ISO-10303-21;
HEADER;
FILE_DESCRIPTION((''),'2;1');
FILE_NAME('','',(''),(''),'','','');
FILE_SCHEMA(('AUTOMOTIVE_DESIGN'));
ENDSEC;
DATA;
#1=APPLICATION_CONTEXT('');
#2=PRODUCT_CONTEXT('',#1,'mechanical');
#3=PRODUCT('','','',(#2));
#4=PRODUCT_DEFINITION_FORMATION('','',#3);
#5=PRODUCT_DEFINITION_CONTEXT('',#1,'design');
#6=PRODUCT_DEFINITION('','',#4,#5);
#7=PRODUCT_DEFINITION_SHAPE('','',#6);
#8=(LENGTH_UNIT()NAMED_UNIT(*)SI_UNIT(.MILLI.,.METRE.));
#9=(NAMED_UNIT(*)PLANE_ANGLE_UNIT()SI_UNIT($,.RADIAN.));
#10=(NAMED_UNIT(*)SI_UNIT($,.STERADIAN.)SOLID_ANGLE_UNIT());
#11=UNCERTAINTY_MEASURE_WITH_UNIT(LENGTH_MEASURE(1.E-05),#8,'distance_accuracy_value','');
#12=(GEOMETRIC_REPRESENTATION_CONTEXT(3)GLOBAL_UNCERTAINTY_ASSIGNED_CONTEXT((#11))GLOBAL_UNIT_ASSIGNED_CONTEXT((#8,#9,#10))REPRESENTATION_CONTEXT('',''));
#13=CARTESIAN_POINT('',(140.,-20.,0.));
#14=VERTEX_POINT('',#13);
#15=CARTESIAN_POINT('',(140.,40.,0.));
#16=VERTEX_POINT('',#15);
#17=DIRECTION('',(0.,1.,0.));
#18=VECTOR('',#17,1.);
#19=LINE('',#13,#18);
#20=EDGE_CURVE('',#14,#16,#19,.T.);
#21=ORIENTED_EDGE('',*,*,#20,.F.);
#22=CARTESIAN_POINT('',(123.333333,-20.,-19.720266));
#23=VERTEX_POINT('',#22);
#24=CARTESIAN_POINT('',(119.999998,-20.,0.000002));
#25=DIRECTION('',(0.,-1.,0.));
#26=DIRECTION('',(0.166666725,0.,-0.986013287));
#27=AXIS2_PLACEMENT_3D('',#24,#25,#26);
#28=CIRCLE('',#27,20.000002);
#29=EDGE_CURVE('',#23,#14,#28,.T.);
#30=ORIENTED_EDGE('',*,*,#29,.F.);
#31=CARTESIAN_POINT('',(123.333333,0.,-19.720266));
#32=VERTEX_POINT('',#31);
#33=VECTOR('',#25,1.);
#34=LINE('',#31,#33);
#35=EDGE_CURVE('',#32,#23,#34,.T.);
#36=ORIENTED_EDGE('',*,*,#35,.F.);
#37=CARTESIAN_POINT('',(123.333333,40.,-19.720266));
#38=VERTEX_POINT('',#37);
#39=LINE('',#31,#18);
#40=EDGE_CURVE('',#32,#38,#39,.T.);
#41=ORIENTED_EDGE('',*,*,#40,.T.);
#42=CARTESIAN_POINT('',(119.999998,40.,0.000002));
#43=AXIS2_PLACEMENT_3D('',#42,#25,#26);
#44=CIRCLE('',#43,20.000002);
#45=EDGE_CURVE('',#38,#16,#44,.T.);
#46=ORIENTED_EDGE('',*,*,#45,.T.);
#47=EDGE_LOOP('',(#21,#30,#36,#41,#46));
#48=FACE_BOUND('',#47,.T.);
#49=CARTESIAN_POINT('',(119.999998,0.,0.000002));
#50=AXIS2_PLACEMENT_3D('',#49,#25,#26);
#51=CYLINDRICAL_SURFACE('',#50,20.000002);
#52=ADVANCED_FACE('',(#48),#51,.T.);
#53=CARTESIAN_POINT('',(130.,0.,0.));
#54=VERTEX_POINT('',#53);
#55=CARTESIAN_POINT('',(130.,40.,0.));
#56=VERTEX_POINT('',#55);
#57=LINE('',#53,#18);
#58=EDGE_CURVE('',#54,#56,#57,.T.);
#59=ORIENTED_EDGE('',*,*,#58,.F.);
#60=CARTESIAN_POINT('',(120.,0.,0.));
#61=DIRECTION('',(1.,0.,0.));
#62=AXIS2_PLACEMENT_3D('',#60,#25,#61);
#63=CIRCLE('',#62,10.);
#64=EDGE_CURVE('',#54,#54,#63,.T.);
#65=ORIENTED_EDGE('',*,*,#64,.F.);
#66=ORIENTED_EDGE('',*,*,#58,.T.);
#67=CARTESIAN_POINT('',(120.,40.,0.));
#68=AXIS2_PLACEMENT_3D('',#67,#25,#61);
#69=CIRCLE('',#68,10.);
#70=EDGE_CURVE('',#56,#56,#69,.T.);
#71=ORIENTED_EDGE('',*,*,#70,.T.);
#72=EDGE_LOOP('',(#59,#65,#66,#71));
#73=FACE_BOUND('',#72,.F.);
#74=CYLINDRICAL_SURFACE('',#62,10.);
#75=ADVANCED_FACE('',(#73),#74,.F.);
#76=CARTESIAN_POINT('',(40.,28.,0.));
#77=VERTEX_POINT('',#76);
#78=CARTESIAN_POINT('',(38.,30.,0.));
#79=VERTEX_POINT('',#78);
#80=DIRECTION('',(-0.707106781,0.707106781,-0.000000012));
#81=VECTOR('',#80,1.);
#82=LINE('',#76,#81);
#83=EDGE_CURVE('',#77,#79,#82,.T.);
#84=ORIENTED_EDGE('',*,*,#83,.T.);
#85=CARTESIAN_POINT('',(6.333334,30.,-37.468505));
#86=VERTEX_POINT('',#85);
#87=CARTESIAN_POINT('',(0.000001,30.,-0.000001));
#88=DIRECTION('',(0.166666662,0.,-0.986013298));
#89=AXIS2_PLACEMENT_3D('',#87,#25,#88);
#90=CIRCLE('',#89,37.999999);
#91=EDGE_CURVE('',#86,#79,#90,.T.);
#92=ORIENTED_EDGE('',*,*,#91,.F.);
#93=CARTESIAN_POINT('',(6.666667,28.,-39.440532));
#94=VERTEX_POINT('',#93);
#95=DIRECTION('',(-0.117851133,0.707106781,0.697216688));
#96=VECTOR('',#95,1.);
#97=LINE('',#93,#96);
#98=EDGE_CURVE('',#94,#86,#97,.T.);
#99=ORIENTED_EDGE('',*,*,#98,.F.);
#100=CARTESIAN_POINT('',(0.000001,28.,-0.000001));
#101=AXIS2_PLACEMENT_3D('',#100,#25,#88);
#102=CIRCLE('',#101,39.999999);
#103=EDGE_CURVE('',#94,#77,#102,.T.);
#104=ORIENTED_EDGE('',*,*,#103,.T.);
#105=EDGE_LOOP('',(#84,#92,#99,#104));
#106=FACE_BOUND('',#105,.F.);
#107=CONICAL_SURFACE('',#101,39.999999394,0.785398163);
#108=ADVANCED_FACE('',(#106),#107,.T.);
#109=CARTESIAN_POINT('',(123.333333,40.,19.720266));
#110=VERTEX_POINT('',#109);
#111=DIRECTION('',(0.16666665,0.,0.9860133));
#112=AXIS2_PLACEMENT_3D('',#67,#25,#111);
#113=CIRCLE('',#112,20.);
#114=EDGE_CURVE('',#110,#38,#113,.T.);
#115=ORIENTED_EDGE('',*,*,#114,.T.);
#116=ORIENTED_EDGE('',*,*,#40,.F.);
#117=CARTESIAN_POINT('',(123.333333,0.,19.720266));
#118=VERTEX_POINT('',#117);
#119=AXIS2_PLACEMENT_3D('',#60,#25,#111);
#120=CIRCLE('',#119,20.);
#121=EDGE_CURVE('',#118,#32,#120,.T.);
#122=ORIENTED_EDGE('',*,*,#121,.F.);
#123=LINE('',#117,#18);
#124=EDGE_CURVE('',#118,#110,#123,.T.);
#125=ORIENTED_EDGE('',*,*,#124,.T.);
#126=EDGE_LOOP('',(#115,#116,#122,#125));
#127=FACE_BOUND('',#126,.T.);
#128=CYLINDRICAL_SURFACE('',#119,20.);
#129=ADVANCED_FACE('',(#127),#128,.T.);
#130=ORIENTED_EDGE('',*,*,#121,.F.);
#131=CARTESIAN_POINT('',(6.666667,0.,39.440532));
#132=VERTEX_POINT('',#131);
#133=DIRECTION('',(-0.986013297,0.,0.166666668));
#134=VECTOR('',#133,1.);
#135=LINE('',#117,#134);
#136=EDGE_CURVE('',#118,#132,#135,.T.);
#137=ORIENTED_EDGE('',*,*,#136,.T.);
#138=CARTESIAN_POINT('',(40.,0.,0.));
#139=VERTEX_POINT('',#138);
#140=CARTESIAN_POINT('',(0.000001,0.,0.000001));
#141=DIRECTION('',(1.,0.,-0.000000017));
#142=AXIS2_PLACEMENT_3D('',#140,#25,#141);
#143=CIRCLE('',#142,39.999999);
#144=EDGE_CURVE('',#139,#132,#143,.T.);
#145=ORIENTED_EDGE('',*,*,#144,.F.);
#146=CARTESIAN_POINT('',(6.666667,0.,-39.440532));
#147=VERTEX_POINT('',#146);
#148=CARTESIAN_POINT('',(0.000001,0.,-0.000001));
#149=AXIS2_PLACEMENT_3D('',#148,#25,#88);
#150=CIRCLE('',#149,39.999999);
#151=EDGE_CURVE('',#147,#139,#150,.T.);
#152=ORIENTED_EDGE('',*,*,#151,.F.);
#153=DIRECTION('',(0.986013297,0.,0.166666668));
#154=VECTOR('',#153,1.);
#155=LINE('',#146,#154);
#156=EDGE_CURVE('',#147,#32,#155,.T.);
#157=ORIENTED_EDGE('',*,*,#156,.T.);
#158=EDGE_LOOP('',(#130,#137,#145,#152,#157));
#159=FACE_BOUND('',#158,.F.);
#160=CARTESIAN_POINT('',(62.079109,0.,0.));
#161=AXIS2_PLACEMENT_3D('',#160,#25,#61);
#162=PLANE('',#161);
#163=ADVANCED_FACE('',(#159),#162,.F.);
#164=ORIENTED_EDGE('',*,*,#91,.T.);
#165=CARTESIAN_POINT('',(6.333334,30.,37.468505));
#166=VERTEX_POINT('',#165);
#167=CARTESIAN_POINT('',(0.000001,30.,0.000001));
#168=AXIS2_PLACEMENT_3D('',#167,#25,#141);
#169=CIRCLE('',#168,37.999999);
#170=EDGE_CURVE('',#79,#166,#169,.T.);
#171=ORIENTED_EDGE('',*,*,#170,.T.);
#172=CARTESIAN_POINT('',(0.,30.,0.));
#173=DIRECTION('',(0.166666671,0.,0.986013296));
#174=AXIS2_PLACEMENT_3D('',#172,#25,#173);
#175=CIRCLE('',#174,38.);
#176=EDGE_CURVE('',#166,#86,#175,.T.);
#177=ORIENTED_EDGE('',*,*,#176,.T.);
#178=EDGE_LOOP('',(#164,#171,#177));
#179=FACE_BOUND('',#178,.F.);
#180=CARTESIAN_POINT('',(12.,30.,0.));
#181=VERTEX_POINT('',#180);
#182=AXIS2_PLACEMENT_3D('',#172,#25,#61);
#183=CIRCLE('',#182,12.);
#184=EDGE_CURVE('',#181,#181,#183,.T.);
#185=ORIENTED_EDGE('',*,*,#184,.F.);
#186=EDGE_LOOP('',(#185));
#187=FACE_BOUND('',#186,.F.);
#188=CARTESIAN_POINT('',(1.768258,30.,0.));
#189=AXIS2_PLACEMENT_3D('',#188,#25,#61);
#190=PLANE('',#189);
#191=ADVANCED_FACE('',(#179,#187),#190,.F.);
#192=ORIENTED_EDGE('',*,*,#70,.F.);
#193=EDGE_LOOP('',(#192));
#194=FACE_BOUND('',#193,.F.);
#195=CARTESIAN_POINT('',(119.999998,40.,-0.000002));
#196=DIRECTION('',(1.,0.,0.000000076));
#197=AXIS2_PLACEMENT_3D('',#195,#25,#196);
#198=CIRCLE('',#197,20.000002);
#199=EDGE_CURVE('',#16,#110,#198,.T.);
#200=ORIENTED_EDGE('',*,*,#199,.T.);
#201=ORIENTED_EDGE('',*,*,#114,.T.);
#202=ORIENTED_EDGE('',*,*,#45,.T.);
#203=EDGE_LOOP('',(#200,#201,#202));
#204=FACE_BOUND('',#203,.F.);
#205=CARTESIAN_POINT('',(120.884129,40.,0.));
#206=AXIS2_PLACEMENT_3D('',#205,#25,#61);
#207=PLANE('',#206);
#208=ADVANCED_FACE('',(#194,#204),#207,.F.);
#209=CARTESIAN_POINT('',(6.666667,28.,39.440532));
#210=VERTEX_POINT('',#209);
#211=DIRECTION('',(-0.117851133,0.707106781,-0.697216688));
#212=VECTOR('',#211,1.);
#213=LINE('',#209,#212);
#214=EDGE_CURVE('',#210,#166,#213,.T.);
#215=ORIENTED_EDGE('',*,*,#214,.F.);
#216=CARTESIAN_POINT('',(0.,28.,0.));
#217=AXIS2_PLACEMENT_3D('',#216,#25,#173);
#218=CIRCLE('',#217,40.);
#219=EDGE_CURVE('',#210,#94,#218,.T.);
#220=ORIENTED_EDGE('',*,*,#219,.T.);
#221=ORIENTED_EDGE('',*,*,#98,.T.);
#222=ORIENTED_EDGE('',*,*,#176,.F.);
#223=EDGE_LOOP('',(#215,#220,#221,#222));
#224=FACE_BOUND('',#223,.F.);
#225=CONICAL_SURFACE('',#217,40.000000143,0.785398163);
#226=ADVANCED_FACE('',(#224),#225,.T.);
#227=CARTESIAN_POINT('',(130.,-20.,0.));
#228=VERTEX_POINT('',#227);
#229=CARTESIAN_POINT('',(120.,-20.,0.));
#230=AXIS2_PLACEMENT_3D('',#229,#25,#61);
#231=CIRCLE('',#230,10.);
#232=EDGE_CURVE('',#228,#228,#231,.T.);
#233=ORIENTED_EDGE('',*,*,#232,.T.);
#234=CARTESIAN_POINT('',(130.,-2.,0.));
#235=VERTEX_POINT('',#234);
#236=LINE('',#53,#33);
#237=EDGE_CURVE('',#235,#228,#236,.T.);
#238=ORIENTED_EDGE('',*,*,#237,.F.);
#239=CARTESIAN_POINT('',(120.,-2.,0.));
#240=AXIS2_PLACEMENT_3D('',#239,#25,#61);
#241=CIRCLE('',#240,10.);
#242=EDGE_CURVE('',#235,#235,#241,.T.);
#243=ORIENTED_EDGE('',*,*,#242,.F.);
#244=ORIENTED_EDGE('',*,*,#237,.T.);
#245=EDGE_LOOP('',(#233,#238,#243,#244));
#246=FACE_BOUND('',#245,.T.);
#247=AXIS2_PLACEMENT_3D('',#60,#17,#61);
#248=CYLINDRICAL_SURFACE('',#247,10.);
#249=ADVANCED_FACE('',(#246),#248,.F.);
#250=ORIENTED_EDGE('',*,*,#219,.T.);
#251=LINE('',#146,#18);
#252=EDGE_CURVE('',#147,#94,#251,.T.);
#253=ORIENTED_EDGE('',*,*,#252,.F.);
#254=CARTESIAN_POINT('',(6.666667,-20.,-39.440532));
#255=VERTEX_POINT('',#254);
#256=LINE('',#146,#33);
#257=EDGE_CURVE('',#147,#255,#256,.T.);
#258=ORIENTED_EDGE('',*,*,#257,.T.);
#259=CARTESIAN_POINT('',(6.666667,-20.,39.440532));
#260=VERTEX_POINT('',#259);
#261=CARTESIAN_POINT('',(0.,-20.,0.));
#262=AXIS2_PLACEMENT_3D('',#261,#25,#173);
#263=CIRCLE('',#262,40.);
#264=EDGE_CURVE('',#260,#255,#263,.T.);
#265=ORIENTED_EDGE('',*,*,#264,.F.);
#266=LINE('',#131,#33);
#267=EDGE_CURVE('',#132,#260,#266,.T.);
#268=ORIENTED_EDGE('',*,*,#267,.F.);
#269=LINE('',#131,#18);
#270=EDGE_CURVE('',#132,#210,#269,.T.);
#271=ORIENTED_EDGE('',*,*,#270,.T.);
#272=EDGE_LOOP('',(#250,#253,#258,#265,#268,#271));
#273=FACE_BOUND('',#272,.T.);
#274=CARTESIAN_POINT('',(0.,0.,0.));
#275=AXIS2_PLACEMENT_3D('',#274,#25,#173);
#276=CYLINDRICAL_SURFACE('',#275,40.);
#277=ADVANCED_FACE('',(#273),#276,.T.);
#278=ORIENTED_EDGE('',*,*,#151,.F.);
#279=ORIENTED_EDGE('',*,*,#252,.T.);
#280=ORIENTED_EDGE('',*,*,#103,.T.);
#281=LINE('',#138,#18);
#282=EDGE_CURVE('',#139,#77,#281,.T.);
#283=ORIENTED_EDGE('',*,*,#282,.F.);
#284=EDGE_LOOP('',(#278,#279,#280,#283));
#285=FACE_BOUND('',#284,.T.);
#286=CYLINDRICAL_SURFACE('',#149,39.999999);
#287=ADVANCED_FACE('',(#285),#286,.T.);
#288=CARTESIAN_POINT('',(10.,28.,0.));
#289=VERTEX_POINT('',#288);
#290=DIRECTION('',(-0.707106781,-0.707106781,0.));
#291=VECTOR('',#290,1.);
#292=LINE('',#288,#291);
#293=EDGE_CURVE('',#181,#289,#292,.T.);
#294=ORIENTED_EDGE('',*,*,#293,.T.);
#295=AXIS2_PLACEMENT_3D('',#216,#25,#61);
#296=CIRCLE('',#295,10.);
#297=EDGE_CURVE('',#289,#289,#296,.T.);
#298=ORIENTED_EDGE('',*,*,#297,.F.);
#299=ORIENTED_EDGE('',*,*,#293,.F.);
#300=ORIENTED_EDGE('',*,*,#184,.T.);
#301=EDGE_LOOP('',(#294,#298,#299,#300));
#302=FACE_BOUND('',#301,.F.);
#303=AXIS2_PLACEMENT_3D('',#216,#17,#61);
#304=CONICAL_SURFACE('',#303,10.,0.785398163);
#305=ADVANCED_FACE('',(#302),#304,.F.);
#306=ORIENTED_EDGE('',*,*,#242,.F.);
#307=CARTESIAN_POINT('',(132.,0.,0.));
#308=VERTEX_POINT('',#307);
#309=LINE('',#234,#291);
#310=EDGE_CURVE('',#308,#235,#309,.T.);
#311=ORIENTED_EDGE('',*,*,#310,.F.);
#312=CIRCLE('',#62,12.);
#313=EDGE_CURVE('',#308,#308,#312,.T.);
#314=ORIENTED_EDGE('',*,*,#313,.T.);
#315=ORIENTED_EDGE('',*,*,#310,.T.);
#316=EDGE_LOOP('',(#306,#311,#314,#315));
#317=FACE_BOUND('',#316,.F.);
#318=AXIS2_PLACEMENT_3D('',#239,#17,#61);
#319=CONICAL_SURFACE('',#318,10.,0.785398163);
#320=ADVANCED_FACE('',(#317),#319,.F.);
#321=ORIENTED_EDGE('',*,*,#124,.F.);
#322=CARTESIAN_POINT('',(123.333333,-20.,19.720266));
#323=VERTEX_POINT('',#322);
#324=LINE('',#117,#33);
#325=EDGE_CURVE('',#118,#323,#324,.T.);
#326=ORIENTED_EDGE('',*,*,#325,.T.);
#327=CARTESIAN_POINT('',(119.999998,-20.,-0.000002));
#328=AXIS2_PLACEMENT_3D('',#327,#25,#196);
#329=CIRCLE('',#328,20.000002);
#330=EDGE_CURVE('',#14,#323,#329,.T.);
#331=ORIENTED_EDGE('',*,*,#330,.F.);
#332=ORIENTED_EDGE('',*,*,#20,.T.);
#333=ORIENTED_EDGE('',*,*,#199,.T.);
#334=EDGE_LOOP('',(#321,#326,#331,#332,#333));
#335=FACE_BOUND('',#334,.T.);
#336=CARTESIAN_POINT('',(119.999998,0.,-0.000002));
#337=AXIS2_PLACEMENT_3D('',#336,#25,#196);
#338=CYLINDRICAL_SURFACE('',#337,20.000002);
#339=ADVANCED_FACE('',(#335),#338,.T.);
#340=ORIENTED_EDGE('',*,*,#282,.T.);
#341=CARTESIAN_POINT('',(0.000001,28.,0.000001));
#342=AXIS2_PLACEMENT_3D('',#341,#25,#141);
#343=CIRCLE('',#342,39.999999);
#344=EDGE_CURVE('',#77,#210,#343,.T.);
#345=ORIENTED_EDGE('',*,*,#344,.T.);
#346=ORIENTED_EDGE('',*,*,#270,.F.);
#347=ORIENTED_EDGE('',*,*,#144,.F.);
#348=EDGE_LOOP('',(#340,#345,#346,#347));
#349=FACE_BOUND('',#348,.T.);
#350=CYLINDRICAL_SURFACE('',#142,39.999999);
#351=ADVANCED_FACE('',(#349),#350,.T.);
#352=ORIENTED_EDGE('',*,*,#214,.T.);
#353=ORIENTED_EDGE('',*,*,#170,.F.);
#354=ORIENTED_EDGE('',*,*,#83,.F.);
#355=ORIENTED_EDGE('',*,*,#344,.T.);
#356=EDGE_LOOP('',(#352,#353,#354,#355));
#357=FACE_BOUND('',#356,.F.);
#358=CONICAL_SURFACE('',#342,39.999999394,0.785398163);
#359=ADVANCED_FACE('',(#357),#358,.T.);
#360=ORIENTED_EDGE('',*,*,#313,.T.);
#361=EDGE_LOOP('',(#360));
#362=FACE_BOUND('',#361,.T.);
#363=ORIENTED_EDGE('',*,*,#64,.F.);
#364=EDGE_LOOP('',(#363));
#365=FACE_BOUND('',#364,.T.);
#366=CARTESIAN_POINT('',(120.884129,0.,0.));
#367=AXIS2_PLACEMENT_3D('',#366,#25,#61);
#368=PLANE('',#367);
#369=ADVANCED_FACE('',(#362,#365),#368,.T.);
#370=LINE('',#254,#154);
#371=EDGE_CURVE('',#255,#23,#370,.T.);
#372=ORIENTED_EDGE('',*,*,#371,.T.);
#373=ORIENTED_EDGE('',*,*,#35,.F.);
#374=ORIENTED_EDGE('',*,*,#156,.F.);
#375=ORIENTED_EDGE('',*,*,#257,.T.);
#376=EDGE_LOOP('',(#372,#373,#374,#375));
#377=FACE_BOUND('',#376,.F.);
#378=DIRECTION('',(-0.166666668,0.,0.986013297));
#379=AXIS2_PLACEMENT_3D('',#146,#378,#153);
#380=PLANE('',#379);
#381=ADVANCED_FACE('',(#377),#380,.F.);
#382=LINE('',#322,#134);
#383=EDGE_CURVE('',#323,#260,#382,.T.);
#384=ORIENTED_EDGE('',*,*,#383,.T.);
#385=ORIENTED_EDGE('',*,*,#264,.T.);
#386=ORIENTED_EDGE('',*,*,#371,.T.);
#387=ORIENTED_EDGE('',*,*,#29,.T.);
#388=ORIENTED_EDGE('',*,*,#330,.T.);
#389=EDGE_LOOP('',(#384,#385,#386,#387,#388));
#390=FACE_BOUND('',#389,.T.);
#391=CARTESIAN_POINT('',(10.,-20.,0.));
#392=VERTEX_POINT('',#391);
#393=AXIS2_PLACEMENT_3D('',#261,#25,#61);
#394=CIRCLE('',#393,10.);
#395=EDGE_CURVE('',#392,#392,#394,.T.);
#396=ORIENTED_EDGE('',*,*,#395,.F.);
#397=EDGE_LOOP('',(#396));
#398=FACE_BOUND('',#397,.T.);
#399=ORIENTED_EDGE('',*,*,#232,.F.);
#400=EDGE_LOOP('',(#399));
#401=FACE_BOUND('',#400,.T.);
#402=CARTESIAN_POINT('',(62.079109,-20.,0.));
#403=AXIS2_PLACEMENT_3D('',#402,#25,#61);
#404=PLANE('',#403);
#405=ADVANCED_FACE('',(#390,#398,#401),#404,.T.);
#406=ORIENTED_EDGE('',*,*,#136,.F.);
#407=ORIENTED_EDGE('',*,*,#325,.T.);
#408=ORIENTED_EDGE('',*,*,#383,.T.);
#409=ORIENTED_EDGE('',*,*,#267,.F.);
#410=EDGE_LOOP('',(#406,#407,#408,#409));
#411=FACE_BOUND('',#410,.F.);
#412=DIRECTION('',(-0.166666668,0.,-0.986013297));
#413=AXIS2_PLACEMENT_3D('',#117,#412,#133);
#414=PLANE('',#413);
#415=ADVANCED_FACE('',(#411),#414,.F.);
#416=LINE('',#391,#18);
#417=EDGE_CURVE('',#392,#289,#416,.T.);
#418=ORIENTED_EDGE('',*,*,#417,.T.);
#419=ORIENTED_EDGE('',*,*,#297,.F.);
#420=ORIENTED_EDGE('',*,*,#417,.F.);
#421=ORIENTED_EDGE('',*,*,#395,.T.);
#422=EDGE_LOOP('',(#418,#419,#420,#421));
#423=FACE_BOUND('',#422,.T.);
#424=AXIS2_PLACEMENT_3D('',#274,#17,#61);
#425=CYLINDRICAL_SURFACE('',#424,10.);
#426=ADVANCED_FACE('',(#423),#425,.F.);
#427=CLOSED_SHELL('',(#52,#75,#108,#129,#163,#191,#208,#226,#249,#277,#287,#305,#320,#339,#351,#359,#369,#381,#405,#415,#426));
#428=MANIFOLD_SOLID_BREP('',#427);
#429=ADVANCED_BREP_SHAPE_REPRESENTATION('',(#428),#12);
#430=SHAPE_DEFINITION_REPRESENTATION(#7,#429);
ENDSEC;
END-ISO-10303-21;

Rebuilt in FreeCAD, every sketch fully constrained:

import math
import FreeCAD as App
import Part
import Sketcher


def edges_at(feature, points):
    """Names of the edges that pass closest to the given points."""
    edges = feature.Shape.Edges
    near = lambda p: min(range(len(edges)), key=lambda i: edges[i].distToShape(Part.Vertex(*p))[0])
    return sorted({f"Edge{near(p) + 1}" for p in points})

doc = App.newDocument("Part")
params = doc.addObject("Spreadsheet::Sheet", "Params")
for row, (alias, value) in enumerate([
    ("sketch1_diameter", "20 mm"),
    ("sketch1_radius", "40 mm"),
    ("sketch1_radius2", "20.000002 mm"),
    ("pad1_length", "20 mm"),
    ("sketch2_diameter", "20 mm"),
    ("sketch2_radius", "39.999999 mm"),
    ("pad2_length", "30 mm"),
    ("chamfer_size", "2 mm"),
    ("sketch3_diameter", "20 mm"),
    ("sketch3_radius", "20.000002 mm"),
    ("pad3_length", "40 mm"),
], start=1):
    params.set(f"A{row}", alias)
    params.set(f"B{row}", "=" + value)
    params.setAlias(f"B{row}", alias)

body = doc.addObject("PartDesign::Body", "Body")

sketch1 = body.newObject("Sketcher::SketchObject", "Sketch")
sketch1.AttachmentSupport = (doc.getObject("XZ_Plane"), [""])
sketch1.MapMode = "FlatFace"
sketch1.addGeometry([
    Part.LineSegment(App.Vector(123.333333, 19.720266, 0), App.Vector(6.666667, 39.440532, 0)),
    Part.ArcOfCircle(Part.Circle(App.Vector(0, 0, 0), App.Vector(0, 0, 1), 40), math.radians(80.405932), math.radians(279.594068)),
    Part.LineSegment(App.Vector(6.666667, -39.440532, 0), App.Vector(123.333333, -19.720266, 0)),
    Part.ArcOfCircle(Part.Circle(App.Vector(119.999998, 0.000002, 0), App.Vector(0, 0, 1), 20.000002), math.radians(-80.405928), math.radians(-0.000004)),
    Part.ArcOfCircle(Part.Circle(App.Vector(119.999998, -0.000002, 0), App.Vector(0, 0, 1), 20.000002), math.radians(0.000004), math.radians(80.405928)),
    Part.Circle(App.Vector(0, 0, 0), App.Vector(0, 0, 1), 10),
    Part.Circle(App.Vector(120, 0, 0), App.Vector(0, 0, 1), 10),
], False)
sketch1.addConstraint([
    Sketcher.Constraint("Tangent", 0, 2, 1, 1),
    Sketcher.Constraint("Tangent", 1, 2, 2, 1),
    Sketcher.Constraint("Tangent", 2, 2, 3, 1),
    Sketcher.Constraint("Tangent", 3, 2, 4, 1),
    Sketcher.Constraint("Tangent", 4, 2, 0, 1),
    Sketcher.Constraint("Coincident", 1, 3, -1, 1),
    Sketcher.Constraint("Coincident", 5, 3, -1, 1),
    Sketcher.Constraint("Coincident", 6, 3, 3, 3),
    Sketcher.Constraint("Equal", 3, 4),
    Sketcher.Constraint("Equal", 5, 6),
    Sketcher.Constraint("PointOnObject", 3, 3, -1),
    Sketcher.Constraint("PointOnObject", 3, 2, -1),
    Sketcher.Constraint("Diameter", 5, 20.0),
    Sketcher.Constraint("Radius", 1, 40.0),
    Sketcher.Constraint("Radius", 3, 20.000002),
    Sketcher.Constraint("DistanceX", -1, 1, 3, 3, 119.999998),
])
sketch1.setExpression("Constraints[12]", "Params.sketch1_diameter")
sketch1.setExpression("Constraints[13]", "Params.sketch1_radius")
sketch1.setExpression("Constraints[14]", "Params.sketch1_radius2")
pad1 = body.newObject("PartDesign::Pad", "Pad")
pad1.Profile = sketch1
pad1.setExpression("Length", "Params.pad1_length")

sketch2 = body.newObject("Sketcher::SketchObject", "Sketch001")
sketch2.AttachmentSupport = (doc.getObject("XZ_Plane"), [""])
sketch2.MapMode = "FlatFace"
sketch2.addGeometry([
    Part.ArcOfCircle(Part.Circle(App.Vector(0.000001, -0.000001, 0), App.Vector(0, 0, 1), 39.999999), math.radians(-80.405932), math.radians(0.000001)),
    Part.ArcOfCircle(Part.Circle(App.Vector(0.000001, 0.000001, 0), App.Vector(0, 0, 1), 39.999999), math.radians(-0.000001), math.radians(80.405932)),
    Part.ArcOfCircle(Part.Circle(App.Vector(0, 0, 0), App.Vector(0, 0, 1), 40), math.radians(80.405932), math.radians(279.594068)),
    Part.Circle(App.Vector(0, 0, 0), App.Vector(0, 0, 1), 10),
], False)
sketch2.addConstraint([
    Sketcher.Constraint("Tangent", 0, 2, 1, 1),
    Sketcher.Constraint("Tangent", 1, 2, 2, 1),
    Sketcher.Constraint("Tangent", 2, 2, 0, 1),
    Sketcher.Constraint("Coincident", 0, 3, -1, 1),
    Sketcher.Constraint("Coincident", 3, 3, -1, 1),
    Sketcher.Constraint("PointOnObject", 0, 2, -1),
    Sketcher.Constraint("Vertical", 1, 2, 2, 2),
    Sketcher.Constraint("Diameter", 3, 20.0),
    Sketcher.Constraint("Radius", 0, 39.999999),
    Sketcher.Constraint("DistanceY", -1, 1, 1, 2, 39.440532),
])
sketch2.setExpression("Constraints[7]", "Params.sketch2_diameter")
sketch2.setExpression("Constraints[8]", "Params.sketch2_radius")
pad2 = body.newObject("PartDesign::Pad", "Pad001")
pad2.Profile = sketch2
pad2.setExpression("Length", "Params.pad2_length")
pad2.Reversed = True
doc.recompute()

chamfer = body.newObject("PartDesign::Chamfer", "Chamfer")
chamfer.Base = (pad2, edges_at(pad2, [(-10, 30, 0), (-40, 30, 0), (110, 0, 0)]))
chamfer.setExpression("Size", "Params.chamfer_size")

sketch3 = body.newObject("Sketcher::SketchObject", "Sketch002")
sketch3.AttachmentSupport = (doc.getObject("XZ_Plane"), [""])
sketch3.MapMode = "FlatFace"
sketch3.addGeometry([
    Part.ArcOfCircle(Part.Circle(App.Vector(119.999998, -0.000002, 0), App.Vector(0, 0, 1), 20.000002), math.radians(0.000004), math.radians(80.405928)),
    Part.ArcOfCircle(Part.Circle(App.Vector(120, 0, 0), App.Vector(0, 0, 1), 20), math.radians(80.405933), math.radians(279.594067)),
    Part.ArcOfCircle(Part.Circle(App.Vector(119.999998, 0.000002, 0), App.Vector(0, 0, 1), 20.000002), math.radians(-80.405928), math.radians(-0.000004)),
    Part.Circle(App.Vector(120, 0, 0), App.Vector(0, 0, 1), 10),
], False)
sketch3.addConstraint([
    Sketcher.Constraint("Tangent", 0, 2, 1, 1),
    Sketcher.Constraint("Tangent", 1, 2, 2, 1),
    Sketcher.Constraint("Tangent", 2, 2, 0, 1),
    Sketcher.Constraint("Coincident", 3, 3, 0, 3),
    Sketcher.Constraint("Symmetric", 0, 2, 1, 2, -1),
    Sketcher.Constraint("PointOnObject", 2, 2, -1),
    Sketcher.Constraint("Diameter", 3, 20.0),
    Sketcher.Constraint("Radius", 0, 20.000002),
    Sketcher.Constraint("DistanceX", -1, 1, 0, 3, 119.999998),
    Sketcher.Constraint("DistanceX", -1, 1, 0, 2, 123.333333),
])
sketch3.setExpression("Constraints[6]", "Params.sketch3_diameter")
sketch3.setExpression("Constraints[7]", "Params.sketch3_radius")
pad3 = body.newObject("PartDesign::Pad", "Pad002")
pad3.Profile = sketch3
pad3.setExpression("Length", "Params.pad3_length")
pad3.Reversed = True

doc.recompute()
